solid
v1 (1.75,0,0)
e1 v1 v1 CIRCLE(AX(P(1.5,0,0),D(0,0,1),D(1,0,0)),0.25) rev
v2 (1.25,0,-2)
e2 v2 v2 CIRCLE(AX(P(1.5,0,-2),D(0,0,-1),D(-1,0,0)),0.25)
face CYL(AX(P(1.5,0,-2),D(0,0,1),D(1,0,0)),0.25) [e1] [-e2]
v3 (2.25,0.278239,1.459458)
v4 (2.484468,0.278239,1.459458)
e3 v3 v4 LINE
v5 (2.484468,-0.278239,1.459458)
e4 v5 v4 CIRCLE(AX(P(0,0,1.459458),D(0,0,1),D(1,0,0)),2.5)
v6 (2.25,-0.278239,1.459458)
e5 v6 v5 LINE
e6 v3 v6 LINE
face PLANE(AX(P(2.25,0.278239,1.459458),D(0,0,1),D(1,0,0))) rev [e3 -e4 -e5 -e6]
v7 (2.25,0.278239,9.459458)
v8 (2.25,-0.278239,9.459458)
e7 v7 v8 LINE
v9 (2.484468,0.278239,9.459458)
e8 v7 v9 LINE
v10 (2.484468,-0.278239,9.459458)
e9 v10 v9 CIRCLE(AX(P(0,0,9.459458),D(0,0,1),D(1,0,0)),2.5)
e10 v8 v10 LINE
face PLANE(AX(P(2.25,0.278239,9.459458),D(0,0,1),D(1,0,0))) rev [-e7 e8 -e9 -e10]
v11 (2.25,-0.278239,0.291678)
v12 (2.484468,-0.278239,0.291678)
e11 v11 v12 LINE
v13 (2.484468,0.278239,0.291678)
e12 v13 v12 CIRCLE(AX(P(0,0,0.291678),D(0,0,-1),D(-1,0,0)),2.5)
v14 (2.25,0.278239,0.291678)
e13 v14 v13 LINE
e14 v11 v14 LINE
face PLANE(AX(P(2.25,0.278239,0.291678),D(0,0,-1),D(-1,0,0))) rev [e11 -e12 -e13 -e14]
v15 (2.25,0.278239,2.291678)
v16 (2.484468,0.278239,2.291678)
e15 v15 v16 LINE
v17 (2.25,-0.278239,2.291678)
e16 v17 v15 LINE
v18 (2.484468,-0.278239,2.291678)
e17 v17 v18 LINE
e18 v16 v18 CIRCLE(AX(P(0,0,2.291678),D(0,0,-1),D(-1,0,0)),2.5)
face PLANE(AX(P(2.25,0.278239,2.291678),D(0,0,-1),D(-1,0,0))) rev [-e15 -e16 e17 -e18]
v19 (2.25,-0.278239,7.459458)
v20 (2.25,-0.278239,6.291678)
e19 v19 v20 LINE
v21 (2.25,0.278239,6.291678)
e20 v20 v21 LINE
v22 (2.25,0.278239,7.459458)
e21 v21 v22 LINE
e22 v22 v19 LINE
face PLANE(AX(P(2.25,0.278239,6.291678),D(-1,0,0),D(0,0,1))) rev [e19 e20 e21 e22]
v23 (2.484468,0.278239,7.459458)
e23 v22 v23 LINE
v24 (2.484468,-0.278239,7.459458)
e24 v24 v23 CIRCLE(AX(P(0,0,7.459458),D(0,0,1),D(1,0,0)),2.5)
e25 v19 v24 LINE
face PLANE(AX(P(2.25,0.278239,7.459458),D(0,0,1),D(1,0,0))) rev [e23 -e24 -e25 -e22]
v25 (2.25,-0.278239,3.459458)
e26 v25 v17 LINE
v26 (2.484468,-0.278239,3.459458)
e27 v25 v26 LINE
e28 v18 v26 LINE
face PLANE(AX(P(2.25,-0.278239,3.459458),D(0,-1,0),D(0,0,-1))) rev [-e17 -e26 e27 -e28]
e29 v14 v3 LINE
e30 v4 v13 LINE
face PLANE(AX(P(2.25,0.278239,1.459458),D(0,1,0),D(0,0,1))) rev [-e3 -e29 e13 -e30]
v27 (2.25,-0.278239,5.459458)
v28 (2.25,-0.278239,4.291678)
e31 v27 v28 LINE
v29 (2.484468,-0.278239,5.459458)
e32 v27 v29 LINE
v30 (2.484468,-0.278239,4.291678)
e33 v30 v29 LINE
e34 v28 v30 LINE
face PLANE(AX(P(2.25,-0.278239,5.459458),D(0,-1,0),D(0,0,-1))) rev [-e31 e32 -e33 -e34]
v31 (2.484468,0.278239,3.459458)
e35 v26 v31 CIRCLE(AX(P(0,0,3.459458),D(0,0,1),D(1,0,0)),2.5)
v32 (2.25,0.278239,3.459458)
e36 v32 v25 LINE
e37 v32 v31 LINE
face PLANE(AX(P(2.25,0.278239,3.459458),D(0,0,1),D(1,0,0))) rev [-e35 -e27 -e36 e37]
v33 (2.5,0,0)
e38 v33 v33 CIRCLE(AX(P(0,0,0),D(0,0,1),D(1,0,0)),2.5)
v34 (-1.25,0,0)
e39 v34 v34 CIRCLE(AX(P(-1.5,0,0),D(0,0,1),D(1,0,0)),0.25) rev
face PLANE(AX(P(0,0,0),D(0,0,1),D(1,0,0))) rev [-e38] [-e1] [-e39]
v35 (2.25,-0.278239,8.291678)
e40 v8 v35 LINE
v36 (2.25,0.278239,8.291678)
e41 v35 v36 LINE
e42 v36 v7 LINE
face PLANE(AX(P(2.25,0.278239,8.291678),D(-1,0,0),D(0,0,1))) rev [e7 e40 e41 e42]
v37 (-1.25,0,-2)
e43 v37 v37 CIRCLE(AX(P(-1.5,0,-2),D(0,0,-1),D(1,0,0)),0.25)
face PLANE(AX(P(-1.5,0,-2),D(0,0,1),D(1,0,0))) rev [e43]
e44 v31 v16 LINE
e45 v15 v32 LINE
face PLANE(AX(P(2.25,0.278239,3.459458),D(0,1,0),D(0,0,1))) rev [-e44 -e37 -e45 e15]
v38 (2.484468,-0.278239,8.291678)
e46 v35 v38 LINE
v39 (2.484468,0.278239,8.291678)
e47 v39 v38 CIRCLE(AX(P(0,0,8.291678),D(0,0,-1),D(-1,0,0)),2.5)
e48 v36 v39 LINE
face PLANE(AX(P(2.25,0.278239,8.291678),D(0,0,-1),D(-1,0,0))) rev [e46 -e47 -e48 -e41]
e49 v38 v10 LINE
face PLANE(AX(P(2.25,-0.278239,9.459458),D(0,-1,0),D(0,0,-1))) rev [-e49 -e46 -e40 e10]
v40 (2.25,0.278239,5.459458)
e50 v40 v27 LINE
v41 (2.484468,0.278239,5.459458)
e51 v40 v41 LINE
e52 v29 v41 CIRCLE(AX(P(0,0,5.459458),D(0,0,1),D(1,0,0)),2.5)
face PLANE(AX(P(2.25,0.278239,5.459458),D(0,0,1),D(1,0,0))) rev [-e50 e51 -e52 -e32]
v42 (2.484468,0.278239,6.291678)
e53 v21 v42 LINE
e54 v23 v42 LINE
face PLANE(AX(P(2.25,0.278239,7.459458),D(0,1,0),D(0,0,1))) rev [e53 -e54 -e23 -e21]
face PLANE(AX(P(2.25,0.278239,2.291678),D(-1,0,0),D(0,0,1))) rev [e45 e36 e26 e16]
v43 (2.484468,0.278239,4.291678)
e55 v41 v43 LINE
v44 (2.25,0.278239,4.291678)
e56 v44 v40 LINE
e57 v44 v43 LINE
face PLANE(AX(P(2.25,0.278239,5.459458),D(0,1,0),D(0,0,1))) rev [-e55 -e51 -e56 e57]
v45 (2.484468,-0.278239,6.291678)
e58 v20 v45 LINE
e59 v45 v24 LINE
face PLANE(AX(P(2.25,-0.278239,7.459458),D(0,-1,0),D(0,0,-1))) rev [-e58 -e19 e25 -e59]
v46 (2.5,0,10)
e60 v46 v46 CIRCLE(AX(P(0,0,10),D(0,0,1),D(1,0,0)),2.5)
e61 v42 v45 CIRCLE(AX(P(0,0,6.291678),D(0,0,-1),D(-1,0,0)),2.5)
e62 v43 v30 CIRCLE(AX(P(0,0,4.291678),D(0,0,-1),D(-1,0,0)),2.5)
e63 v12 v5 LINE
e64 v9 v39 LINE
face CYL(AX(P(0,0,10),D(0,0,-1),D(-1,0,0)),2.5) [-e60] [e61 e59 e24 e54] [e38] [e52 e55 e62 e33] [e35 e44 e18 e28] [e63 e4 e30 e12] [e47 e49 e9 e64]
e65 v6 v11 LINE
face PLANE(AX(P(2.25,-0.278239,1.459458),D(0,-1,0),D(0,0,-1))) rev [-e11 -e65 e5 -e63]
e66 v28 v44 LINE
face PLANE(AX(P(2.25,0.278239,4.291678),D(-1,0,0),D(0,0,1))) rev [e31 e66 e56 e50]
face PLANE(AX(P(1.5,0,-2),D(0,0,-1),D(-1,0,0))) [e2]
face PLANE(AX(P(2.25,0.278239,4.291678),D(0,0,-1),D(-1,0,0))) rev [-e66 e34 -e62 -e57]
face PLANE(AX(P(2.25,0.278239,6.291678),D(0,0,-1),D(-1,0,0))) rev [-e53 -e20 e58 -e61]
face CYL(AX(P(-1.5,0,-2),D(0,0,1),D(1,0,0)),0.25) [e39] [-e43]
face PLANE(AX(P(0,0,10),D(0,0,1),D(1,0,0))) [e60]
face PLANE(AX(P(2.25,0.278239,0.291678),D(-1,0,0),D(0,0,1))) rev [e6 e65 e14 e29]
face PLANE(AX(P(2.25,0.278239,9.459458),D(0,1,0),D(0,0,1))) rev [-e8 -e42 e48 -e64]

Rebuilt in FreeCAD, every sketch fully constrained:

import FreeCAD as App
import Part
import Sketcher
Q = App.Units.Quantity


def add_polygon(sketch, points):
    """Adds a closed chain of lines whose ends are joined by coincident constraints."""
    first, n = sketch.GeometryCount, len(points)
    for a, b in zip(points, points[1:] + points[:1]):
        sketch.addGeometry(Part.LineSegment(App.Vector(*a, 0), App.Vector(*b, 0)), False)
    for i in range(n):
        sketch.addConstraint(Sketcher.Constraint("Coincident", first + i, 2, first + (i + 1) % n, 1))

doc = App.newDocument("Part")
body = doc.addObject("PartDesign::Body", "Body")

# Sketch on XY plane
sketch1 = body.newObject("Sketcher::SketchObject", "Sketch")
sketch1.AttachmentSupport = (doc.getObject("XY_Plane"), [""])
sketch1.MapMode = "FlatFace"
sketch1.addGeometry(Part.Circle(App.Vector(0, 0, 0), App.Vector(0, 0, 1), 2.5), False)
sketch1.addConstraint(Sketcher.Constraint("Coincident", 0, 3, -1, 1))
sketch1.addConstraint(Sketcher.Constraint("Diameter", 0, Q("5 mm")))
pad1 = body.newObject("PartDesign::Pad", "Pad")
pad1.Profile = sketch1
pad1.Length = 10

# Sketch on XY plane
sketch2 = body.newObject("Sketcher::SketchObject", "Sketch001")
sketch2.AttachmentSupport = (doc.getObject("XY_Plane"), [""])
sketch2.MapMode = "FlatFace"
sketch2.addGeometry(Part.Circle(App.Vector(1.5, 0, 0), App.Vector(0, 0, 1), 0.25), False)
sketch2.addGeometry(Part.Circle(App.Vector(-1.5, 0, 0), App.Vector(0, 0, 1), 0.25), False)
sketch2.addConstraint(Sketcher.Constraint("Equal", 0, 1))
sketch2.addConstraint(Sketcher.Constraint("Symmetric", 0, 3, 1, 3, -1, 1))
sketch2.addConstraint(Sketcher.Constraint("PointOnObject", 0, 3, -1))
sketch2.addConstraint(Sketcher.Constraint("Diameter", 0, Q("0.5 mm")))
sketch2.addConstraint(Sketcher.Constraint("DistanceX", 1, 3, 0, 3, Q("3 mm")))
pad2 = body.newObject("PartDesign::Pad", "Pad001")
pad2.Profile = sketch2
pad2.Length = 2
pad2.Reversed = True

# Sketch on YZ plane
sketch3 = body.newObject("Sketcher::SketchObject", "Sketch002")
sketch3.AttachmentSupport = (doc.getObject("YZ_Plane"), [""])
sketch3.MapMode = "FlatFace"
sketch3.AttachmentOffset = App.Placement(App.Vector(0, 0, 2.5), App.Rotation())
add_polygon(sketch3, [(0.3, 9.5), (-0.3, 9.5), (-0.3, 8.3), (0.3, 8.3)])  # lines 0-3
add_polygon(sketch3, [(0.3, 7.5), (-0.3, 7.5), (-0.3, 6.3), (0.3, 6.3)])  # lines 4-7
add_polygon(sketch3, [(0.3, 5.5), (-0.3, 5.5), (-0.3, 4.3), (0.3, 4.3)])  # lines 8-11
add_polygon(sketch3, [(0.3, 3.5), (-0.3, 3.5), (-0.3, 2.3), (0.3, 2.3)])  # lines 12-15
add_polygon(sketch3, [(0.3, 1.5), (-0.3, 1.5), (-0.3, 0.3), (0.3, 0.3)])  # lines 16-19
sketch3.addConstraint(Sketcher.Constraint("Horizontal", 0))
sketch3.addConstraint(Sketcher.Constraint("Vertical", 1))
sketch3.addConstraint(Sketcher.Constraint("Horizontal", 2))
sketch3.addConstraint(Sketcher.Constraint("Vertical", 3))
sketch3.addConstraint(Sketcher.Constraint("Horizontal", 4))
sketch3.addConstraint(Sketcher.Constraint("Vertical", 5))
sketch3.addConstraint(Sketcher.Constraint("Horizontal", 6))
sketch3.addConstraint(Sketcher.Constraint("Vertical", 7))
sketch3.addConstraint(Sketcher.Constraint("Horizontal", 8))
sketch3.addConstraint(Sketcher.Constraint("Vertical", 9))
sketch3.addConstraint(Sketcher.Constraint("Horizontal", 10))
sketch3.addConstraint(Sketcher.Constraint("Vertical", 11))
sketch3.addConstraint(Sketcher.Constraint("Horizontal", 12))
sketch3.addConstraint(Sketcher.Constraint("Vertical", 13))
sketch3.addConstraint(Sketcher.Constraint("Horizontal", 14))
sketch3.addConstraint(Sketcher.Constraint("Vertical", 15))
sketch3.addConstraint(Sketcher.Constraint("Horizontal", 16))
sketch3.addConstraint(Sketcher.Constraint("Vertical", 17))
sketch3.addConstraint(Sketcher.Constraint("Horizontal", 18))
sketch3.addConstraint(Sketcher.Constraint("Vertical", 19))
sketch3.addConstraint(Sketcher.Constraint("Vertical", 1, 2, 4, 2))
sketch3.addConstraint(Sketcher.Constraint("Vertical", 3, 2, 6, 2))
sketch3.addConstraint(Sketcher.Constraint("Vertical", 5, 2, 8, 2))
sketch3.addConstraint(Sketcher.Constraint("Vertical", 7, 2, 10, 2))
sketch3.addConstraint(Sketcher.Constraint("Vertical", 9, 2, 12, 2))
sketch3.addConstraint(Sketcher.Constraint("Vertical", 11, 2, 14, 2))
sketch3.addConstraint(Sketcher.Constraint("Vertical", 13, 2, 16, 2))
sketch3.addConstraint(Sketcher.Constraint("Vertical", 15, 2, 18, 2))
sketch3.addConstraint(Sketcher.Constraint("Equal", 3, 5))
sketch3.addConstraint(Sketcher.Constraint("Equal", 7, 9))
sketch3.addConstraint(Sketcher.Constraint("Equal", 11, 13))
sketch3.addConstraint(Sketcher.Constraint("Equal", 15, 17))
sketch3.addConstraint(Sketcher.Constraint("DistanceY", 4, 2, 0, 2, Q("2 mm")))
sketch3.addConstraint(Sketcher.Constraint("DistanceY", 8, 2, 4, 2, Q("2 mm")))
sketch3.addConstraint(Sketcher.Constraint("DistanceY", 12, 2, 8, 2, Q("2 mm")))
sketch3.addConstraint(Sketcher.Constraint("DistanceY", 16, 2, 12, 2, Q("2 mm")))
sketch3.addConstraint(Sketcher.Constraint("DistanceY", 1, 2, 1, 1, Q("1.16778 mm")))
sketch3.addConstraint(Sketcher.Constraint("DistanceX", 0, 2, 0, 1, Q("0.556477 mm")))
sketch3.addConstraint(Sketcher.Constraint("DistanceX", 0, 2, -1, 1, Q("0.278239 mm")))
sketch3.addConstraint(Sketcher.Constraint("DistanceY", -1, 1, 1, 2, Q("8.291678 mm")))
pocket1 = body.newObject("PartDesign::Pocket", "Pocket")
pocket1.Profile = sketch3
pocket1.Length = 0.25

doc.recompute()
